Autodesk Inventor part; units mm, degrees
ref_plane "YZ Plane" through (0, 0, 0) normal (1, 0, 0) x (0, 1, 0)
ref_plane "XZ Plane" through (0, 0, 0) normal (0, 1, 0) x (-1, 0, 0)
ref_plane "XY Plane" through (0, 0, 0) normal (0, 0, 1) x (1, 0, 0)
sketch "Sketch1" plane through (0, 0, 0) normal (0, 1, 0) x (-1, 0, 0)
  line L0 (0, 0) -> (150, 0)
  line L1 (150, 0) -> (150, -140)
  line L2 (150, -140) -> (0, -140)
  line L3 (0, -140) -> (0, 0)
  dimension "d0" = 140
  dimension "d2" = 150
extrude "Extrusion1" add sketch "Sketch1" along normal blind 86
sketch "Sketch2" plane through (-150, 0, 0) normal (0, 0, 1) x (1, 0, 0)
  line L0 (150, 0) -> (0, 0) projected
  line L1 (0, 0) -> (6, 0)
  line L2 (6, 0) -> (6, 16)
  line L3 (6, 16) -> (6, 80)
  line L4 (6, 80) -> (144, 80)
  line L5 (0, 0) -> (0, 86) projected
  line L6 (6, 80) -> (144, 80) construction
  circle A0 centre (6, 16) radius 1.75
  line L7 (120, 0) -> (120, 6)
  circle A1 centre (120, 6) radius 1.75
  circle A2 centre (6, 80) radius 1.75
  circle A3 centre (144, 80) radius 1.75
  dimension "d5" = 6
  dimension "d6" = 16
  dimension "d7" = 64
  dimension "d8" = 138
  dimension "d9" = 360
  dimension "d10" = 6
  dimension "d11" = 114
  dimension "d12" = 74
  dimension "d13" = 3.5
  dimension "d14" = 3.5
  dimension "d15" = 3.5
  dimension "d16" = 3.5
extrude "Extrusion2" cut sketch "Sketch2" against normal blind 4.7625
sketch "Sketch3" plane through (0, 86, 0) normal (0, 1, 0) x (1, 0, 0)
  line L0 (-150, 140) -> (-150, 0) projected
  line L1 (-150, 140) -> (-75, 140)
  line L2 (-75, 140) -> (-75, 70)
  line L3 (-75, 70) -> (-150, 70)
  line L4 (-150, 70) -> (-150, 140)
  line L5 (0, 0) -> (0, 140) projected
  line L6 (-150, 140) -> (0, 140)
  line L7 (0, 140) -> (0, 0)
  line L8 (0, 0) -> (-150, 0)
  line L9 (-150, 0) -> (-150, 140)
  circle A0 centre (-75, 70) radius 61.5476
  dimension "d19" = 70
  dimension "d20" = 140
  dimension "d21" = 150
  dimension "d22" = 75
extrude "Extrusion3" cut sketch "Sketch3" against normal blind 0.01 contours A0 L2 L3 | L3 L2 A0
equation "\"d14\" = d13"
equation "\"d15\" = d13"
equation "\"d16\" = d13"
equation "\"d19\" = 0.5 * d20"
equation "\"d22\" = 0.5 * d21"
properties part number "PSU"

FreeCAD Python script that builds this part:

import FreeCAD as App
import Part
import Sketcher

V = App.Vector
Q = App.Units.Quantity

doc = App.newDocument("Part")
body = doc.addObject("PartDesign::Body", "Body")

sketch1 = doc.addObject("Sketcher::SketchObject", "Sketch")
body.addObject(sketch1)
sketch1.AttachmentSupport = (doc.XZ_Plane, [""])
sketch1.MapMode = "FlatFace"
sketch1.addGeometry(Part.LineSegment(V(-150, 0, 0), V(0, 0, 0)), False)
sketch1.addGeometry(Part.LineSegment(V(0, 0, 0), V(0, -140, 0)), False)
sketch1.addGeometry(Part.LineSegment(V(0, -140, 0), V(-150, -140, 0)), False)
sketch1.addGeometry(Part.LineSegment(V(-150, -140, 0), V(-150, 0, 0)), False)
sketch1.addConstraint(Sketcher.Constraint("Coincident", 0, 2, 1, 1))
sketch1.addConstraint(Sketcher.Constraint("Coincident", 1, 2, 2, 1))
sketch1.addConstraint(Sketcher.Constraint("Coincident", 2, 2, 3, 1))
sketch1.addConstraint(Sketcher.Constraint("Coincident", 3, 2, 0, 1))
sketch1.addConstraint(Sketcher.Constraint("Horizontal", 0))
sketch1.addConstraint(Sketcher.Constraint("Vertical", 1))
sketch1.addConstraint(Sketcher.Constraint("Horizontal", 2))
sketch1.addConstraint(Sketcher.Constraint("Vertical", 3))
sketch1.addConstraint(Sketcher.Constraint("Coincident", 0, 2, -1, 1))
sketch1.addConstraint(Sketcher.Constraint("DistanceX", 0, 1, 0, 2, Q("150 mm")))
sketch1.addConstraint(Sketcher.Constraint("DistanceY", 1, 2, 1, 1, Q("140 mm")))
pad1 = doc.addObject("PartDesign::Pad", "Pad")
body.addObject(pad1)
pad1.Profile = sketch1
pad1.Length = 86
pad1.Reversed = True

sketch2 = doc.addObject("Sketcher::SketchObject", "Sketch001")
body.addObject(sketch2)
sketch2.AttachmentSupport = (doc.XY_Plane, [""])
sketch2.MapMode = "FlatFace"
sketch2.addGeometry(Part.Circle(V(-6, 80, 0), V(0, 0, 1), 1.75), False)
sketch2.addGeometry(Part.Circle(V(-144, 80, 0), V(0, 0, 1), 1.75), False)
sketch2.addGeometry(Part.Circle(V(-144, 16, 0), V(0, 0, 1), 1.75), False)
sketch2.addGeometry(Part.Circle(V(-30, 6, 0), V(0, 0, 1), 1.75), False)
sketch2.addConstraint(Sketcher.Constraint("Equal", 0, 1))
sketch2.addConstraint(Sketcher.Constraint("Equal", 1, 2))
sketch2.addConstraint(Sketcher.Constraint("Equal", 2, 3))
sketch2.addConstraint(Sketcher.Constraint("Horizontal", 0, 3, 1, 3))
sketch2.addConstraint(Sketcher.Constraint("Vertical", 1, 3, 2, 3))
sketch2.addConstraint(Sketcher.Constraint("Diameter", 0, Q("3.5 mm")))
sketch2.addConstraint(Sketcher.Constraint("DistanceX", 0, 3, -1, 1, Q("6 mm")))
sketch2.addConstraint(Sketcher.Constraint("DistanceY", -1, 1, 2, 3, Q("16 mm")))
sketch2.addConstraint(Sketcher.Constraint("DistanceY", -1, 1, 3, 3, Q("6 mm")))
sketch2.addConstraint(Sketcher.Constraint("DistanceX", 1, 3, 0, 3, Q("138 mm")))
sketch2.addConstraint(Sketcher.Constraint("DistanceY", 2, 3, 1, 3, Q("64 mm")))
sketch2.addConstraint(Sketcher.Constraint("DistanceX", 2, 3, 3, 3, Q("114 mm")))
pocket1 = doc.addObject("PartDesign::Pocket", "Pocket")
body.addObject(pocket1)
pocket1.Profile = sketch2
pocket1.Length = 4.7625

sketch3 = doc.addObject("Sketcher::SketchObject", "Sketch002")
body.addObject(sketch3)
sketch3.AttachmentSupport = (doc.XZ_Plane, [""])
sketch3.MapMode = "FlatFace"
sketch3.AttachmentOffset = App.Placement(V(0, 0, -86), App.Rotation())
sketch3.addGeometry(Part.Circle(V(-75, -70, 0), V(0, 0, 1), 61.5476), False)
sketch3.addConstraint(Sketcher.Constraint("DistanceX", 0, 3, -1, 1, Q("75 mm")))
sketch3.addConstraint(Sketcher.Constraint("DistanceY", 0, 3, -1, 1, Q("70 mm")))
sketch3.addConstraint(Sketcher.Constraint("Diameter", 0, Q("123.0952 mm")))
pocket2 = doc.addObject("PartDesign::Pocket", "Pocket001")
body.addObject(pocket2)
pocket2.Profile = sketch3
pocket2.Length = 0.01
pocket2.Reversed = True

doc.recompute()
